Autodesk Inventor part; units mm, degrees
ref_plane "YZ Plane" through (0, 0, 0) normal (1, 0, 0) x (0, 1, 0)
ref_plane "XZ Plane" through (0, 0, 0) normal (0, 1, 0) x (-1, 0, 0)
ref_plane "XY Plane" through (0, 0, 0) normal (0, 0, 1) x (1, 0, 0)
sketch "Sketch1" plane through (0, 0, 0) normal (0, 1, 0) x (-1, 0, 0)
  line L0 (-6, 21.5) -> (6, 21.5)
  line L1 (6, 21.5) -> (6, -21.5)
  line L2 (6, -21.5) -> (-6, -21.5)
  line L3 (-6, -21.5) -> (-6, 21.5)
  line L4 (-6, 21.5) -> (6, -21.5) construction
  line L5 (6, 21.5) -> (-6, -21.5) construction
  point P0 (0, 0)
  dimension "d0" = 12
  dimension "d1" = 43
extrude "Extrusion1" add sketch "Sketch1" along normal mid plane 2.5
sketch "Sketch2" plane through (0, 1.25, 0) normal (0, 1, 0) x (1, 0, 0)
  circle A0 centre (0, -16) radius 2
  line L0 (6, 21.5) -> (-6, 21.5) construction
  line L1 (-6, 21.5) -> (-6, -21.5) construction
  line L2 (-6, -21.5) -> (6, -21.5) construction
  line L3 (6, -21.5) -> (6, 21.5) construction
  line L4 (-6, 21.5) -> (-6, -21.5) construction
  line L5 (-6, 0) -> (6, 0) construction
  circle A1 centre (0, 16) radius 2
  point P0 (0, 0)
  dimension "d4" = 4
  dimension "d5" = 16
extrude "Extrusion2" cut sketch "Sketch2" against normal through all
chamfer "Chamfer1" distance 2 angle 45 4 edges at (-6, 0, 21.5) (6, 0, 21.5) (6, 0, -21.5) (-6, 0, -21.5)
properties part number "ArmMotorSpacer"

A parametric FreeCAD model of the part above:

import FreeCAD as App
import Part
import Sketcher
from FreeCAD import Vector
Q = App.Units.Quantity


def edges_at(feature, points):
    """Names of the edges that pass closest to the given points."""
    edges = feature.Shape.Edges
    near = lambda p: min(range(len(edges)), key=lambda i: edges[i].distToShape(Part.Vertex(*p))[0])
    return sorted({f"Edge{near(p) + 1}" for p in points})


def add_polygon(sketch, points):
    """Adds a closed chain of lines whose ends are joined by coincident constraints."""
    first, n = sketch.GeometryCount, len(points)
    for a, b in zip(points, points[1:] + points[:1]):
        sketch.addGeometry(Part.LineSegment(App.Vector(*a, 0), App.Vector(*b, 0)), False)
    for i in range(n):
        sketch.addConstraint(Sketcher.Constraint("Coincident", first + i, 2, first + (i + 1) % n, 1))

doc = App.newDocument("Part")
body = doc.addObject("PartDesign::Body", "Body")

# Sketch on XZ plane
sketch1 = body.newObject("Sketcher::SketchObject", "Sketch")
sketch1.AttachmentSupport = (doc.getObject("XZ_Plane"), [""])
sketch1.MapMode = "FlatFace"
add_polygon(sketch1, [(-6, 22), (6, 22), (6, -22), (-6, -22)])  # lines 0-3
sketch1.addConstraint(Sketcher.Constraint("Horizontal", 0))
sketch1.addConstraint(Sketcher.Constraint("Vertical", 1))
sketch1.addConstraint(Sketcher.Constraint("Horizontal", 2))
sketch1.addConstraint(Sketcher.Constraint("Vertical", 3))
sketch1.addConstraint(Sketcher.Constraint("Symmetric", 0, 2, 2, 2, -1, 1))
sketch1.addConstraint(Sketcher.Constraint("DistanceX", 0, 1, 0, 2, Q("12 mm")))
sketch1.addConstraint(Sketcher.Constraint("DistanceY", 1, 2, 1, 1, Q("43 mm")))
pad1 = body.newObject("PartDesign::Pad", "Pad")
pad1.Profile = sketch1
pad1.Length = 2.5
pad1.Midplane = True

# Sketch on XZ plane
sketch2 = body.newObject("Sketcher::SketchObject", "Sketch001")
sketch2.AttachmentSupport = (doc.getObject("XZ_Plane"), [""])
sketch2.MapMode = "FlatFace"
sketch2.AttachmentOffset = App.Placement(Vector(0, 0, -1.25), App.Rotation())
sketch2.addGeometry(Part.Circle(Vector(0, 16, 0), Vector(0, 0, 1), 2), False)
sketch2.addGeometry(Part.Circle(Vector(0, -16, 0), Vector(0, 0, 1), 2), False)
sketch2.addConstraint(Sketcher.Constraint("Equal", 0, 1))
sketch2.addConstraint(Sketcher.Constraint("Symmetric", 0, 3, 1, 3, -1, 1))
sketch2.addConstraint(Sketcher.Constraint("PointOnObject", 0, 3, -2))
sketch2.addConstraint(Sketcher.Constraint("Diameter", 0, Q("4 mm")))
sketch2.addConstraint(Sketcher.Constraint("DistanceY", -1, 1, 0, 3, Q("16 mm")))
pocket1 = body.newObject("PartDesign::Pocket", "Pocket")
pocket1.Profile = sketch2
pocket1.Type = "ThroughAll"
pocket1.Reversed = True
doc.recompute()

chamfer = body.newObject("PartDesign::Chamfer", "Chamfer")
chamfer.Base = (pocket1, edges_at(pocket1, [
    (-6, 0, 21.5),
    (6, 0, 21.5),
    (6, 0, -21.5),
    (-6, 0, -21.5),
]))
chamfer.Size = 2

doc.recompute()
